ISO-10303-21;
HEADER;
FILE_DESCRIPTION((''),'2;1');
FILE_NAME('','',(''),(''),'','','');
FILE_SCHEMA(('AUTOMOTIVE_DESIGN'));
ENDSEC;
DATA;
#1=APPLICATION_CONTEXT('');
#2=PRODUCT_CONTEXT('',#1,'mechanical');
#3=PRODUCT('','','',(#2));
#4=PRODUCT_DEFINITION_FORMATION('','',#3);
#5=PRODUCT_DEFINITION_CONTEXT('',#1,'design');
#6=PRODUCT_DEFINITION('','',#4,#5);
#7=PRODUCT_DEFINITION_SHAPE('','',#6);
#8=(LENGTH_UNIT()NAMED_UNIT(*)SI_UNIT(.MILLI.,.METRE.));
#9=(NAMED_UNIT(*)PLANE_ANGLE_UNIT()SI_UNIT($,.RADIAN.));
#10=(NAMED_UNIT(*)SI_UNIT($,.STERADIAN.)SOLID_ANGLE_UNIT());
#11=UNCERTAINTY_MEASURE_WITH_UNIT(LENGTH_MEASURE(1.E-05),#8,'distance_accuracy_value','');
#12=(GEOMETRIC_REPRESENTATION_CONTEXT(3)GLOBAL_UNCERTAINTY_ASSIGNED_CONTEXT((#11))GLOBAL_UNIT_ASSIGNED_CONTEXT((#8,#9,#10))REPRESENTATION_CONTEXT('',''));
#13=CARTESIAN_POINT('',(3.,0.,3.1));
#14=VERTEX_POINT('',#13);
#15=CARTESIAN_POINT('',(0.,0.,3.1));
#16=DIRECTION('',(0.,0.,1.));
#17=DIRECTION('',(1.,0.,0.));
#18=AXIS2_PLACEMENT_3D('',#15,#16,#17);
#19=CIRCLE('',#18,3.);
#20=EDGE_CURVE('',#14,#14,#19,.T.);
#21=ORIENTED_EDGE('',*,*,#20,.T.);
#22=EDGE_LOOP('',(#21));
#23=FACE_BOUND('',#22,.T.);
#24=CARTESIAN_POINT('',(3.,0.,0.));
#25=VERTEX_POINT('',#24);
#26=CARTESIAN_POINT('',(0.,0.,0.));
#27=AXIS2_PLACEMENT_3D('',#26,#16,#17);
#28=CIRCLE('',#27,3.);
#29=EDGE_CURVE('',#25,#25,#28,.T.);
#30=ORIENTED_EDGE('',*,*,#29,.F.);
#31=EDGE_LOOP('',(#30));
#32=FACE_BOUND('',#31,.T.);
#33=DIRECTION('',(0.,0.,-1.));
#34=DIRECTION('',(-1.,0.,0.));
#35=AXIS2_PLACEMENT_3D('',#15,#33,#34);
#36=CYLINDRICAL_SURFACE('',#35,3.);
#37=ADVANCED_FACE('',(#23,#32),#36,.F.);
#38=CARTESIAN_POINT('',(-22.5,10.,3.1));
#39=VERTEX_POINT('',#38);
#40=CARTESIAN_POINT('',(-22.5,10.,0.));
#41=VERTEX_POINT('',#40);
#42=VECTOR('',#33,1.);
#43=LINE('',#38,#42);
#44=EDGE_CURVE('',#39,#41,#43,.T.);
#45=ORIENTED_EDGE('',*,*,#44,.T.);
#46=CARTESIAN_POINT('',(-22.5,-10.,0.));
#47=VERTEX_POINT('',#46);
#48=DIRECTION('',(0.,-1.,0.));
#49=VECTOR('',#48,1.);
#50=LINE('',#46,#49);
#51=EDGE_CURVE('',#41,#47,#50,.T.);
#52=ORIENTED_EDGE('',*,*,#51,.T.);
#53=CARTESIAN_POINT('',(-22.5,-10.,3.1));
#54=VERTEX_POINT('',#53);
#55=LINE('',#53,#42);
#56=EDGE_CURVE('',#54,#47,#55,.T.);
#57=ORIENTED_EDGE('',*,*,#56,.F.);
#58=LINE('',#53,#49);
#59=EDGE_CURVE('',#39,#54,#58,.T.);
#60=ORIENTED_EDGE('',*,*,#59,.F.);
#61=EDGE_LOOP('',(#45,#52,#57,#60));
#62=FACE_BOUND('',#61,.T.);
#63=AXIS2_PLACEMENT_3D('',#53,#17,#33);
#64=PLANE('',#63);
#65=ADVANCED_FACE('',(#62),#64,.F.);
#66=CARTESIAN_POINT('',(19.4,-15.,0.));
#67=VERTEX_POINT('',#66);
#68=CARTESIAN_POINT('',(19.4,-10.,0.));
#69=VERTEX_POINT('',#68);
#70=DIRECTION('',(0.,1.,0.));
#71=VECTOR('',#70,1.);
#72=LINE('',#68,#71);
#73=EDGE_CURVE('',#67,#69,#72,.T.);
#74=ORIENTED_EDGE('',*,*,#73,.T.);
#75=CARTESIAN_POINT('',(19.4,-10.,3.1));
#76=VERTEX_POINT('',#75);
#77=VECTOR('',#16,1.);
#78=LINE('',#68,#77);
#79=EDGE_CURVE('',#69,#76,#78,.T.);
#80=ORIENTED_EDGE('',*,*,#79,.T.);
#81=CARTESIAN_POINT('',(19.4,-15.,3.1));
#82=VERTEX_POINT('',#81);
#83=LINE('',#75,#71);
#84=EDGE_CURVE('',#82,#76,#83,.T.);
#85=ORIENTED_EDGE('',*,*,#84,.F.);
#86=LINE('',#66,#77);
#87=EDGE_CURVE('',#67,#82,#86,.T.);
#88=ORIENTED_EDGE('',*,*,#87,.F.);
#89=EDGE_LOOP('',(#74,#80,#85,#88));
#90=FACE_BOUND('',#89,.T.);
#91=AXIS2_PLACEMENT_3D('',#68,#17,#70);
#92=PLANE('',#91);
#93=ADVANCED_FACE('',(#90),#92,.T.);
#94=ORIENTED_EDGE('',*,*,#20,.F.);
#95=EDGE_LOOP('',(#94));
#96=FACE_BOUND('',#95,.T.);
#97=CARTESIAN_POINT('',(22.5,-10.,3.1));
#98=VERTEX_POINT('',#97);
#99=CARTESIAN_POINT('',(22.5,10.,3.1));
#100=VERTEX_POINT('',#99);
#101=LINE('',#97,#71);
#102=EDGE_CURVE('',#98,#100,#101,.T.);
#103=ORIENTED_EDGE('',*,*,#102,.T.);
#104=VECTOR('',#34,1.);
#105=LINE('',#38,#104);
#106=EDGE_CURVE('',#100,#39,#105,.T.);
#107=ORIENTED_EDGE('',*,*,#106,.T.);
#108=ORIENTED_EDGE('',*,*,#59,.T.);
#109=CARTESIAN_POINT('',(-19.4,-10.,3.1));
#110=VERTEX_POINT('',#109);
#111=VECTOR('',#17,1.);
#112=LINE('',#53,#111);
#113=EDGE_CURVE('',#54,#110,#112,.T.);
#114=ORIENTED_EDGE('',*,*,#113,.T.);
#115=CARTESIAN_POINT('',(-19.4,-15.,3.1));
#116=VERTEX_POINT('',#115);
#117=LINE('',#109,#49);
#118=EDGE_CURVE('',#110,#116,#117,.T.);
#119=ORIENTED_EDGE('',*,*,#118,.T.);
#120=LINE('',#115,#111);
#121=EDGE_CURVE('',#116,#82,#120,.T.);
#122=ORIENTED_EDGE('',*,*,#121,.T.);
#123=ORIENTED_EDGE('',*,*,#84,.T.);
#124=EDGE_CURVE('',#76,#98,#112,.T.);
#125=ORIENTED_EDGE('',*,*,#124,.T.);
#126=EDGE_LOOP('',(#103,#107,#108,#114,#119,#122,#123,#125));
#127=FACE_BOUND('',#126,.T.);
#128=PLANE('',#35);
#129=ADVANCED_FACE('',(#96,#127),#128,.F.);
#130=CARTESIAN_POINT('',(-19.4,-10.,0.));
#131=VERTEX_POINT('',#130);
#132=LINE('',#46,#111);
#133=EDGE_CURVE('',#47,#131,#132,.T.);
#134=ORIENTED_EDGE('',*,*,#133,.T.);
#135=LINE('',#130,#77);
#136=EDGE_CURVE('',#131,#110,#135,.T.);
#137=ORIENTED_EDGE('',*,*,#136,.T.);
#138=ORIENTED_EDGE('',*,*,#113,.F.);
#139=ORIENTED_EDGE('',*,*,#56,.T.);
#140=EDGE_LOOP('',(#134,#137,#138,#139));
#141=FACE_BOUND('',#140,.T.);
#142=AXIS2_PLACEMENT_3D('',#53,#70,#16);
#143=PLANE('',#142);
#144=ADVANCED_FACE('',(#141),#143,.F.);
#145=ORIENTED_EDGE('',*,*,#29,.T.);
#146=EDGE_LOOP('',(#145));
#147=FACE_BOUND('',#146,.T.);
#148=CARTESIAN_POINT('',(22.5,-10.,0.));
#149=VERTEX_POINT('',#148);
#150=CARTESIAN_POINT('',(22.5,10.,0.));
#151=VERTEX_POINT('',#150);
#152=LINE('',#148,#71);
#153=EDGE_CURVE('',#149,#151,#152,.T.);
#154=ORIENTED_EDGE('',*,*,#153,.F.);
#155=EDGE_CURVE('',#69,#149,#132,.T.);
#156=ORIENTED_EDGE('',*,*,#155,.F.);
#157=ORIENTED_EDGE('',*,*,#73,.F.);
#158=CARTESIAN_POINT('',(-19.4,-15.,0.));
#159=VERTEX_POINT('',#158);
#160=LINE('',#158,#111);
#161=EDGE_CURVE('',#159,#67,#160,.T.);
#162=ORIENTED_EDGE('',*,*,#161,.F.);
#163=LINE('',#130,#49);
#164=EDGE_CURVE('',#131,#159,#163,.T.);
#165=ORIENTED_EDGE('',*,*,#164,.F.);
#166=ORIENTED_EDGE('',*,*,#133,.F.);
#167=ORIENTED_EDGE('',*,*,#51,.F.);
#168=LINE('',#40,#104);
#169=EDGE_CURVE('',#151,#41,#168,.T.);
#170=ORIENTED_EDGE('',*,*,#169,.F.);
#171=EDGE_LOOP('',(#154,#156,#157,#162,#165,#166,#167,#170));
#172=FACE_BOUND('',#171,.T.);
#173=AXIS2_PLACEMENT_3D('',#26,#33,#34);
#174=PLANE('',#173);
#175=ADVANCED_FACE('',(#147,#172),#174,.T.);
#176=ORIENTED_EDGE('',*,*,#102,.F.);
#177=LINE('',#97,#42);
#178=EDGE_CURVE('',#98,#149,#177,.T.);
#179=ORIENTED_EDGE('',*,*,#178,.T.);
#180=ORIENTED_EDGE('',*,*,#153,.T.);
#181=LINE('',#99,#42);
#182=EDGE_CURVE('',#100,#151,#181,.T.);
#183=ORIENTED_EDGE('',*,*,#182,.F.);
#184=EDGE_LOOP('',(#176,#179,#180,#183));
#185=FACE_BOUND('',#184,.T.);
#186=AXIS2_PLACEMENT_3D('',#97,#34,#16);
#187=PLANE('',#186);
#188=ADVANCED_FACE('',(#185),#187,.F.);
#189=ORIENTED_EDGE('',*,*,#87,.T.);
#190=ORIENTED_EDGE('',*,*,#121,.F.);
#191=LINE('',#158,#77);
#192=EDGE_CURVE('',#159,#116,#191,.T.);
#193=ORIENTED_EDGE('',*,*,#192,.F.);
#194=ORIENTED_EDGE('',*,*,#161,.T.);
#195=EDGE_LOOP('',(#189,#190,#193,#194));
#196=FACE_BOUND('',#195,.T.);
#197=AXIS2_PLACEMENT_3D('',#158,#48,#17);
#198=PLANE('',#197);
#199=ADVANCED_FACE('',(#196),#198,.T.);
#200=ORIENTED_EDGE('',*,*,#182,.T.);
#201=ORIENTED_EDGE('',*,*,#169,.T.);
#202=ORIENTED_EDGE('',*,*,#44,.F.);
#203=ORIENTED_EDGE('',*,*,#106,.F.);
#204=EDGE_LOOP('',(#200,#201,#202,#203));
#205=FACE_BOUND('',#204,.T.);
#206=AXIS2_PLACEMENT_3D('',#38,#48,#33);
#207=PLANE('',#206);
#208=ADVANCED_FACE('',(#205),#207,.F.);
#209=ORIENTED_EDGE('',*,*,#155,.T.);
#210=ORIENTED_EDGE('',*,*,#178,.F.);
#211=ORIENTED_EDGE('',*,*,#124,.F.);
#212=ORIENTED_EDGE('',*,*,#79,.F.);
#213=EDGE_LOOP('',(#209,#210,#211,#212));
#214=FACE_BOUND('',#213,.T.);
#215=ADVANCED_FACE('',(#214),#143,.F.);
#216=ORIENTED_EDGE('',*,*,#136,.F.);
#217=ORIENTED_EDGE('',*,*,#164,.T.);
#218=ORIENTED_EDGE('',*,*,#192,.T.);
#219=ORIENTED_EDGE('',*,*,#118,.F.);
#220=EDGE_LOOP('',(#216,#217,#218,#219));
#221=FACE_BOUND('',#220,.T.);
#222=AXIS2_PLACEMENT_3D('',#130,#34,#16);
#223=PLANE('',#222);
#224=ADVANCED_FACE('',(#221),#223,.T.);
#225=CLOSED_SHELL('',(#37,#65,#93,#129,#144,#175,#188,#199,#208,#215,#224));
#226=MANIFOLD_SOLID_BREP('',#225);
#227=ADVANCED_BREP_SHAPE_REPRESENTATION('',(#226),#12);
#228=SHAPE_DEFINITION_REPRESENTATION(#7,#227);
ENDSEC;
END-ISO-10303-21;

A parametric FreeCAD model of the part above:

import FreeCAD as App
import Part
import Sketcher

V = App.Vector


def add_polygon(sketch, points):
    """Adds a closed chain of lines whose ends are joined by coincident constraints."""
    first, n = sketch.GeometryCount, len(points)
    for a, b in zip(points, points[1:] + points[:1]):
        sketch.addGeometry(Part.LineSegment(App.Vector(*a, 0), App.Vector(*b, 0)), False)
    for i in range(n):
        sketch.addConstraint(Sketcher.Constraint("Coincident", first + i, 2, first + (i + 1) % n, 1))

doc = App.newDocument("Part")
body = doc.addObject("PartDesign::Body", "Body")

# Sketch on XY plane
sketch1 = body.newObject("Sketcher::SketchObject", "Sketch")
sketch1.AttachmentSupport = (doc.getObject("XY_Plane"), [""])
sketch1.MapMode = "FlatFace"
add_polygon(sketch1, [(-22.5, 10), (-22.5, -10), (22.5, -10), (22.5, 10)])  # lines 0-3
sketch1.addGeometry(Part.Circle(V(0, 0, 0), V(0, 0, 1), 3), False)  # 4
sketch1.addConstraint(Sketcher.Constraint("Vertical", 0))
sketch1.addConstraint(Sketcher.Constraint("Horizontal", 1))
sketch1.addConstraint(Sketcher.Constraint("Vertical", 2))
sketch1.addConstraint(Sketcher.Constraint("Horizontal", 3))
sketch1.addConstraint(Sketcher.Constraint("Coincident", 4, 3, -1, 1))
sketch1.addConstraint(Sketcher.Constraint("Symmetric", 0, 2, 2, 2, -1, 1))
sketch1.addConstraint(Sketcher.Constraint("Diameter", 4, 6.0))
sketch1.addConstraint(Sketcher.Constraint("DistanceX", 1, 1, 1, 2, 45.0))
sketch1.addConstraint(Sketcher.Constraint("DistanceY", 0, 2, 0, 1, 20.0))
pad1 = body.newObject("PartDesign::Pad", "Pad")
pad1.Profile = sketch1
pad1.Length = 3.1

# Sketch on XY plane
sketch2 = body.newObject("Sketcher::SketchObject", "Sketch001")
sketch2.AttachmentSupport = (doc.getObject("XY_Plane"), [""])
sketch2.MapMode = "FlatFace"
sketch2.AttachmentOffset = App.Placement(V(0, 0, 3.1), App.Rotation())
add_polygon(sketch2, [(-19, -10), (-19, -15), (19, -15), (19, -10)])  # lines 0-3
sketch2.addConstraint(Sketcher.Constraint("Vertical", 0))
sketch2.addConstraint(Sketcher.Constraint("Horizontal", 1))
sketch2.addConstraint(Sketcher.Constraint("Vertical", 2))
sketch2.addConstraint(Sketcher.Constraint("Horizontal", 3))
sketch2.addConstraint(Sketcher.Constraint("DistanceY", 0, 2, 0, 1, 5.0))
sketch2.addConstraint(Sketcher.Constraint("DistanceX", 1, 1, 1, 2, 38.8))
sketch2.addConstraint(Sketcher.Constraint("DistanceY", 0, 2, -1, 1, 15.0))
sketch2.addConstraint(Sketcher.Constraint("DistanceX", 0, 2, -1, 1, 19.4))
pad2 = body.newObject("PartDesign::Pad", "Pad001")
pad2.Profile = sketch2
pad2.Length = 3.1
pad2.Reversed = True

doc.recompute()
